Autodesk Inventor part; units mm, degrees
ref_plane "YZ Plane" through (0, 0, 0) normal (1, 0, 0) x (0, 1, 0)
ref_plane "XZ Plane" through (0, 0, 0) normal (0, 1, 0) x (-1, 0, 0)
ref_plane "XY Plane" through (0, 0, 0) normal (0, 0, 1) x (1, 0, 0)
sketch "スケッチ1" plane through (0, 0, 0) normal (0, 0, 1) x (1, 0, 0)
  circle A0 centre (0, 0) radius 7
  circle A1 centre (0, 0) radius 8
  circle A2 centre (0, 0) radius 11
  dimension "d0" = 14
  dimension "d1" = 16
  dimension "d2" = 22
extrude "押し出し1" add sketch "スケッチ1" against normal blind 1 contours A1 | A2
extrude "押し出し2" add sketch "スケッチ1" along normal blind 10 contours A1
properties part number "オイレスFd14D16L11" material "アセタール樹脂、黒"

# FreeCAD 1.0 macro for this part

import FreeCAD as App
import Part
import Sketcher

doc = App.newDocument("Part")
body = doc.addObject("PartDesign::Body", "Body")

sketch1 = body.newObject("Sketcher::SketchObject", "Sketch")
sketch1.AttachmentSupport = (doc.getObject("XY_Plane"), [""])
sketch1.MapMode = "FlatFace"
sketch1.addGeometry([
    Part.Circle(App.Vector(0, 0, 0), App.Vector(0, 0, 1), 11),
    Part.Circle(App.Vector(0, 0, 0), App.Vector(0, 0, 1), 7),
], False)
sketch1.addConstraint([
    Sketcher.Constraint("Coincident", 0, 3, -1, 1),
    Sketcher.Constraint("Coincident", 1, 3, -1, 1),
    Sketcher.Constraint("Diameter", 0, 22.0),
    Sketcher.Constraint("Diameter", 1, 14.0),
])
pad1 = body.newObject("PartDesign::Pad", "Pad")
pad1.Profile = sketch1
pad1.Length = 1
pad1.Reversed = True

sketch2 = body.newObject("Sketcher::SketchObject", "Sketch001")
sketch2.AttachmentSupport = (doc.getObject("XY_Plane"), [""])
sketch2.MapMode = "FlatFace"
sketch2.addGeometry([
    Part.Circle(App.Vector(0, 0, 0), App.Vector(0, 0, 1), 8),
    Part.Circle(App.Vector(0, 0, 0), App.Vector(0, 0, 1), 7),
], False)
sketch2.addConstraint([
    Sketcher.Constraint("Coincident", 0, 3, -1, 1),
    Sketcher.Constraint("Coincident", 1, 3, -1, 1),
    Sketcher.Constraint("Diameter", 0, 16.0),
    Sketcher.Constraint("Diameter", 1, 14.0),
])
pad2 = body.newObject("PartDesign::Pad", "Pad001")
pad2.Profile = sketch2
pad2.Length = 10

doc.recompute()
